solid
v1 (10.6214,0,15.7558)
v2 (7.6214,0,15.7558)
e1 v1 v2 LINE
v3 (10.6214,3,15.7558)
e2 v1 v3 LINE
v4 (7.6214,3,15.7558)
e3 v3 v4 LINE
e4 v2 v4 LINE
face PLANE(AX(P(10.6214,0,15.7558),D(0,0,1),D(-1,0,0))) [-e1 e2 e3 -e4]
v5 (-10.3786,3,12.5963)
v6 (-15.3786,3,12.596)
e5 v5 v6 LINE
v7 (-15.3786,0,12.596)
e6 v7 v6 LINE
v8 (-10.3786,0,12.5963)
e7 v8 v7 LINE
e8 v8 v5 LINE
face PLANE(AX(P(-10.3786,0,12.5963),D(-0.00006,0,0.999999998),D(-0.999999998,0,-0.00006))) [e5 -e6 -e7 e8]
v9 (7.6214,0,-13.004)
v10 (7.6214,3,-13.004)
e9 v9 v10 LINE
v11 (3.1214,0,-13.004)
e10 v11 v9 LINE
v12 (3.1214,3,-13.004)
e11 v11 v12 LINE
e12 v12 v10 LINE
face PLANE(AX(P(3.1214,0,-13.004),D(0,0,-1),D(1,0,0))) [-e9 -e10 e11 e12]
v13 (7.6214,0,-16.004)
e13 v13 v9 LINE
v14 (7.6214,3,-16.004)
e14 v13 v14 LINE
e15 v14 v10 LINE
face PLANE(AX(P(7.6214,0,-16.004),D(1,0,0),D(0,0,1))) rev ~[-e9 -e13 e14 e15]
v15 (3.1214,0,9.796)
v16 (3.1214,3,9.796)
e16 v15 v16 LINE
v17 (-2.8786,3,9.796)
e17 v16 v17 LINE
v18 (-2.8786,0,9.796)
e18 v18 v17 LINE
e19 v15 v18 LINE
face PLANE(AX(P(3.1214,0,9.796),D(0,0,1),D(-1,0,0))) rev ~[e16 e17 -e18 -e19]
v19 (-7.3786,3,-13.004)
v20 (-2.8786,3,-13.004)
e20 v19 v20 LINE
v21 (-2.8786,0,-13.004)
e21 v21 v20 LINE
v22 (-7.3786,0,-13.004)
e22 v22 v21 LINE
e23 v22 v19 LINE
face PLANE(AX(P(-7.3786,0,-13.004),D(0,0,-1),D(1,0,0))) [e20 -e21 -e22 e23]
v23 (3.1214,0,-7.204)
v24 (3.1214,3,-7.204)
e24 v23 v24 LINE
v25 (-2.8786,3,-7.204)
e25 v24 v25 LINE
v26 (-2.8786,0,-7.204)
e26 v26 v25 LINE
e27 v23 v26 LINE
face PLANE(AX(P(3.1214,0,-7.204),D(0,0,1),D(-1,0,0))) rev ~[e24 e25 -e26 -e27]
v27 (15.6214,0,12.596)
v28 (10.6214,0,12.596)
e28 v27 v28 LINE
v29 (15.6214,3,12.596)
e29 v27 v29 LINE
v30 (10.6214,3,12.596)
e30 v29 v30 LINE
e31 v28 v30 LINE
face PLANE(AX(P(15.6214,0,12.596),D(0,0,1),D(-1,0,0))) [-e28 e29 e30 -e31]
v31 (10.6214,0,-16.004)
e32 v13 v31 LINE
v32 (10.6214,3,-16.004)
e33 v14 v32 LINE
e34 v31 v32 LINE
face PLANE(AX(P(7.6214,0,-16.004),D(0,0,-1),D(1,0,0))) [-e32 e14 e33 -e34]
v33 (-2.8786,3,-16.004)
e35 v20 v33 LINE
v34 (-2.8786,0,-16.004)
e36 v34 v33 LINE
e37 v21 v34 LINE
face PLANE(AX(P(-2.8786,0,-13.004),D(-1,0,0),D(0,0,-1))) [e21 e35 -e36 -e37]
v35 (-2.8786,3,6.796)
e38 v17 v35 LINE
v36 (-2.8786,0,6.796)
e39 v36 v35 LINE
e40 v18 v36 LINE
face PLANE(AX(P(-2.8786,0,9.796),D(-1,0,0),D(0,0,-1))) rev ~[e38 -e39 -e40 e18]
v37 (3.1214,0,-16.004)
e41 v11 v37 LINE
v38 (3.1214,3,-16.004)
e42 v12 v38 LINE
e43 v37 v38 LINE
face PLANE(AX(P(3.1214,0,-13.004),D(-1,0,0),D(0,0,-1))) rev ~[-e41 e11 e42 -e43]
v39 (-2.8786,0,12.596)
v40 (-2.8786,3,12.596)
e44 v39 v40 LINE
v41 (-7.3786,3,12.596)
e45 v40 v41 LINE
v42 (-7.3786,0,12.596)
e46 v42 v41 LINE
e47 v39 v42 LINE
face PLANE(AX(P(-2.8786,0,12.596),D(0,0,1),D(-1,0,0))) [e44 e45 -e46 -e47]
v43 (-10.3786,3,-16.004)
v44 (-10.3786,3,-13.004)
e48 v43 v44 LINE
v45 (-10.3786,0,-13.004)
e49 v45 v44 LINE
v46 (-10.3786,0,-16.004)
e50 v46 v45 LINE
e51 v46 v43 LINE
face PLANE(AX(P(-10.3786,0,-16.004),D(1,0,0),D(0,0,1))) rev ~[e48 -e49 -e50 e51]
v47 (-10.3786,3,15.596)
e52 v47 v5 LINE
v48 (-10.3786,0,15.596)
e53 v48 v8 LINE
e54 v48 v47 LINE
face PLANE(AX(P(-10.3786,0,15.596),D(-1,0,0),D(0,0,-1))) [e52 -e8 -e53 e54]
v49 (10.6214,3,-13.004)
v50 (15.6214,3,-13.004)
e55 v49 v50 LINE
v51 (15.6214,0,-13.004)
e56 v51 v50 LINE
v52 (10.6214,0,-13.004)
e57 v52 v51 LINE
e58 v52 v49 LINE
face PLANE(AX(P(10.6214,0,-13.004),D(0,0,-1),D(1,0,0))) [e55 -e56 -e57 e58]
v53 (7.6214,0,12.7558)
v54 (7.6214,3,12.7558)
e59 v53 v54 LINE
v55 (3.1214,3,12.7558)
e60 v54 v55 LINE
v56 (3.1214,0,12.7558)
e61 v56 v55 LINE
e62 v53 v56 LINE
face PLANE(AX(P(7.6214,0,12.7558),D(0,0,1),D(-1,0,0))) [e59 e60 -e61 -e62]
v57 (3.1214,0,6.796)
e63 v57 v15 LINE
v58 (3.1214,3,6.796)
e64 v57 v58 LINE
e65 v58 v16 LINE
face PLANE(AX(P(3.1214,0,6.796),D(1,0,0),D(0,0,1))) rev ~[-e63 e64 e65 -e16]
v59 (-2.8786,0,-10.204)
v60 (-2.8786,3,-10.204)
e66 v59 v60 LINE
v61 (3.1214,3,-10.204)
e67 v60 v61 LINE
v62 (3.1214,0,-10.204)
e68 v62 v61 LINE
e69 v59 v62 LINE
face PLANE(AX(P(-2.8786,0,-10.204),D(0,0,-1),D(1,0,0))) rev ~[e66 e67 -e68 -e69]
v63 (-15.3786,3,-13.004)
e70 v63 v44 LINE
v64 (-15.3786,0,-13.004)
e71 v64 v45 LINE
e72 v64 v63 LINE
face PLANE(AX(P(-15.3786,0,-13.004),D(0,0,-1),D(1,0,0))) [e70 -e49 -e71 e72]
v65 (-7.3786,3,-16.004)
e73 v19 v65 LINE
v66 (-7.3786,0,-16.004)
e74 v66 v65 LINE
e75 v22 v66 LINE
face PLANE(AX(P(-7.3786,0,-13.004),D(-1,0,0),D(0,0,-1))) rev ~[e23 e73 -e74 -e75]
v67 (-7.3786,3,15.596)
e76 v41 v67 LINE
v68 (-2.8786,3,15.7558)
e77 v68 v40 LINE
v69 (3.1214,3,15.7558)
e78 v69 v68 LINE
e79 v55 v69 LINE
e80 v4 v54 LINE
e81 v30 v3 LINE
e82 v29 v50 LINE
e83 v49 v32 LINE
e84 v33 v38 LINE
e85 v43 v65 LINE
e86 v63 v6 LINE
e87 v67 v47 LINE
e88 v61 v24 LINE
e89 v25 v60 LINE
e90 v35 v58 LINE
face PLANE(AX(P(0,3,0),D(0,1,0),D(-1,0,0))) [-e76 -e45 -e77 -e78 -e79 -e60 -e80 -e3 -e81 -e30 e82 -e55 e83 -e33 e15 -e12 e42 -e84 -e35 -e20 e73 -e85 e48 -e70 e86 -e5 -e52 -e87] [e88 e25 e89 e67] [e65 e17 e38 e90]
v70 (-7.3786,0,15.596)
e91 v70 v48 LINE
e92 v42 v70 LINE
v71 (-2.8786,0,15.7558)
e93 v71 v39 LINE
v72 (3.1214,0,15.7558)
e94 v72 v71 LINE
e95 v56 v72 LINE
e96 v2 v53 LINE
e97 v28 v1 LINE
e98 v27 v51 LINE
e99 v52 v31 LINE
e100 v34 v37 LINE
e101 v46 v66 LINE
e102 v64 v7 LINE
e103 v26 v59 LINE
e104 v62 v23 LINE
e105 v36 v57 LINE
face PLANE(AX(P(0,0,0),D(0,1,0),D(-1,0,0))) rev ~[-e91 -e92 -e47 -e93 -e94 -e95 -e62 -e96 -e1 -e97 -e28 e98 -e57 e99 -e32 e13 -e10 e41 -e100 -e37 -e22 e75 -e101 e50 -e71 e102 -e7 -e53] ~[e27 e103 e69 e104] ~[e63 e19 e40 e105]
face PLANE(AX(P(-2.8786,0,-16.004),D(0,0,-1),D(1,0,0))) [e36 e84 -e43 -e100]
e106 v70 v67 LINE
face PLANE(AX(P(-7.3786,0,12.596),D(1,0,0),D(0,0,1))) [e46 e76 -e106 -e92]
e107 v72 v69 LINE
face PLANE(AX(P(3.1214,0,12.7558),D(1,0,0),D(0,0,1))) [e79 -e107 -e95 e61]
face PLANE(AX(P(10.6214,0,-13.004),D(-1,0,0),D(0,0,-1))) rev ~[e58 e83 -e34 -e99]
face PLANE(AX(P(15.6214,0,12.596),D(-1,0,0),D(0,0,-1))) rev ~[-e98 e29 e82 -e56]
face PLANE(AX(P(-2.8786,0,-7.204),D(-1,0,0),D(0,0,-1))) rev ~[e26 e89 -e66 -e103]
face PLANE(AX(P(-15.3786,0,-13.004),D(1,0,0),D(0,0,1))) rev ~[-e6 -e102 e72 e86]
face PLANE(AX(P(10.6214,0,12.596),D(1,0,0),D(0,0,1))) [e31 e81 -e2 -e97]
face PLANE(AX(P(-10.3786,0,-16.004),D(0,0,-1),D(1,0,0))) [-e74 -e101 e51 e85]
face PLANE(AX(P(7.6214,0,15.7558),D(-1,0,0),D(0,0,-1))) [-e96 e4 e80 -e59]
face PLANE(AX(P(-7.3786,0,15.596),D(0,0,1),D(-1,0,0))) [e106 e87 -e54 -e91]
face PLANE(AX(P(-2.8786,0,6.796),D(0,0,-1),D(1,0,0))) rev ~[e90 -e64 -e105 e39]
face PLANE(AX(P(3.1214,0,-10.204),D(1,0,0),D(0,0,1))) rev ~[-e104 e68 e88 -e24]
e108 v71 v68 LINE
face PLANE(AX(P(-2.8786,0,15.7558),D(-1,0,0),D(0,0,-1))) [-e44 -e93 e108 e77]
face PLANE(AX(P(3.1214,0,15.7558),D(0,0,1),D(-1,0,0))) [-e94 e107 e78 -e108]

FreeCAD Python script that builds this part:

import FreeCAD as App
import Part
import Sketcher

V = App.Vector
Q = App.Units.Quantity

doc = App.newDocument("Part")
body = doc.addObject("PartDesign::Body", "Body")

# Sketch on XZ plane
sketch1 = body.newObject("Sketcher::SketchObject", "Sketch")
sketch1.AttachmentSupport = (doc.getObject("XZ_Plane"), [""])
sketch1.MapMode = "FlatFace"
sketch1.addGeometry([
    Part.LineSegment(V(-2.8786, -16.004, 0), V(-2.8786, -13.004, 0)),  # 0
    Part.LineSegment(V(-2.8786, -13.004, 0), V(-7.3786, -13.004, 0)),  # 1
    Part.LineSegment(V(-7.3786, -13.004, 0), V(-7.3786, -16.004, 0)),  # 2
    Part.LineSegment(V(-7.3786, -16.004, 0), V(-10.3786, -16.004, 0)),  # 3
    Part.LineSegment(V(-10.3786, -16.004, 0), V(-10.3786, -13.004, 0)),  # 4
    Part.LineSegment(V(-10.3786, -13.004, 0), V(-15.3786, -13.004, 0)),  # 5
    Part.LineSegment(V(-15.3786, -13.004, 0), V(-15.3786, 12.596, 0)),  # 6
    Part.LineSegment(V(-15.3786, 12.596, 0), V(-10.3786, 12.5963, 0)),  # 7
    Part.LineSegment(V(-10.3786, 12.5963, 0), V(-10.3786, 15.596, 0)),  # 8
    Part.LineSegment(V(-10.3786, 15.596, 0), V(-7.3786, 15.596, 0)),  # 9
    Part.LineSegment(V(-7.3786, 15.596, 0), V(-7.3786, 12.596, 0)),  # 10
    Part.LineSegment(V(-7.3786, 12.596, 0), V(-2.8786, 12.596, 0)),  # 11
    Part.LineSegment(V(-2.8786, 12.596, 0), V(-2.8786, 15.7558, 0)),  # 12
    Part.LineSegment(V(-2.8786, 15.7558, 0), V(3.1214, 15.7558, 0)),  # 13
    Part.LineSegment(V(3.1214, 15.7558, 0), V(3.1214, 12.7558, 0)),  # 14
    Part.LineSegment(V(3.1214, 12.7558, 0), V(7.6214, 12.7558, 0)),  # 15
    Part.LineSegment(V(7.6214, 12.7558, 0), V(7.6214, 15.7558, 0)),  # 16
    Part.LineSegment(V(7.6214, 15.7558, 0), V(10.6214, 15.7558, 0)),  # 17
    Part.LineSegment(V(10.6214, 15.7558, 0), V(10.6214, 12.596, 0)),  # 18
    Part.LineSegment(V(10.6214, 12.596, 0), V(15.6214, 12.596, 0)),  # 19
    Part.LineSegment(V(15.6214, 12.596, 0), V(15.6214, -13.004, 0)),  # 20
    Part.LineSegment(V(15.6214, -13.004, 0), V(10.6214, -13.004, 0)),  # 21
    Part.LineSegment(V(10.6214, -13.004, 0), V(10.6214, -16.004, 0)),  # 22
    Part.LineSegment(V(10.6214, -16.004, 0), V(7.6214, -16.004, 0)),  # 23
    Part.LineSegment(V(7.6214, -16.004, 0), V(7.6214, -13.004, 0)),  # 24
    Part.LineSegment(V(7.6214, -13.004, 0), V(3.1214, -13.004, 0)),  # 25
    Part.LineSegment(V(3.1214, -13.004, 0), V(3.1214, -16.004, 0)),  # 26
    Part.LineSegment(V(3.1214, -16.004, 0), V(-2.8786, -16.004, 0)),  # 27
], False)
sketch1.addConstraint([
    Sketcher.Constraint("Coincident", 0, 2, 1, 1),
    Sketcher.Constraint("Coincident", 1, 2, 2, 1),
    Sketcher.Constraint("Coincident", 2, 2, 3, 1),
    Sketcher.Constraint("Coincident", 3, 2, 4, 1),
    Sketcher.Constraint("Coincident", 4, 2, 5, 1),
    Sketcher.Constraint("Coincident", 5, 2, 6, 1),
    Sketcher.Constraint("Coincident", 6, 2, 7, 1),
    Sketcher.Constraint("Coincident", 7, 2, 8, 1),
    Sketcher.Constraint("Coincident", 8, 2, 9, 1),
    Sketcher.Constraint("Coincident", 9, 2, 10, 1),
    Sketcher.Constraint("Coincident", 10, 2, 11, 1),
    Sketcher.Constraint("Coincident", 11, 2, 12, 1),
    Sketcher.Constraint("Coincident", 12, 2, 13, 1),
    Sketcher.Constraint("Coincident", 13, 2, 14, 1),
    Sketcher.Constraint("Coincident", 14, 2, 15, 1),
    Sketcher.Constraint("Coincident", 15, 2, 16, 1),
    Sketcher.Constraint("Coincident", 16, 2, 17, 1),
    Sketcher.Constraint("Coincident", 17, 2, 18, 1),
    Sketcher.Constraint("Coincident", 18, 2, 19, 1),
    Sketcher.Constraint("Coincident", 19, 2, 20, 1),
    Sketcher.Constraint("Coincident", 20, 2, 21, 1),
    Sketcher.Constraint("Coincident", 21, 2, 22, 1),
    Sketcher.Constraint("Coincident", 22, 2, 23, 1),
    Sketcher.Constraint("Coincident", 23, 2, 24, 1),
    Sketcher.Constraint("Coincident", 24, 2, 25, 1),
    Sketcher.Constraint("Coincident", 25, 2, 26, 1),
    Sketcher.Constraint("Coincident", 26, 2, 27, 1),
    Sketcher.Constraint("Coincident", 27, 2, 0, 1),
    Sketcher.Constraint("Vertical", 0),
    Sketcher.Constraint("Horizontal", 1),
    Sketcher.Constraint("Vertical", 2),
    Sketcher.Constraint("Horizontal", 3),
    Sketcher.Constraint("Vertical", 4),
    Sketcher.Constraint("Horizontal", 5),
    Sketcher.Constraint("Vertical", 6),
    Sketcher.Constraint("Vertical", 8),
    Sketcher.Constraint("Horizontal", 9),
    Sketcher.Constraint("Vertical", 10),
    Sketcher.Constraint("Horizontal", 11),
    Sketcher.Constraint("Vertical", 12),
    Sketcher.Constraint("Horizontal", 13),
    Sketcher.Constraint("Vertical", 14),
    Sketcher.Constraint("Horizontal", 15),
    Sketcher.Constraint("Vertical", 16),
    Sketcher.Constraint("Horizontal", 17),
    Sketcher.Constraint("Vertical", 18),
    Sketcher.Constraint("Horizontal", 19),
    Sketcher.Constraint("Vertical", 20),
    Sketcher.Constraint("Horizontal", 21),
    Sketcher.Constraint("Vertical", 22),
    Sketcher.Constraint("Horizontal", 23),
    Sketcher.Constraint("Vertical", 24),
    Sketcher.Constraint("Horizontal", 25),
    Sketcher.Constraint("Vertical", 26),
    Sketcher.Constraint("Horizontal", 27),
    Sketcher.Constraint("Horizontal", 1, 2, 4, 2),
    Sketcher.Constraint("Horizontal", 6, 2, 10, 2),
    Sketcher.Constraint("Horizontal", 13, 2, 16, 2),
    Sketcher.Constraint("Horizontal", 11, 2, 18, 2),
    Sketcher.Constraint("Horizontal", 5, 2, 20, 2),
    Sketcher.Constraint("Horizontal", 3, 2, 22, 2),
    Sketcher.Constraint("Horizontal", 21, 2, 24, 2),
    Sketcher.Constraint("Horizontal", 23, 2, 26, 2),
    Sketcher.Constraint("Vertical", 4, 2, 7, 2),
    Sketcher.Constraint("Vertical", 2, 2, 9, 2),
    Sketcher.Constraint("Vertical", 0, 2, 11, 2),
    Sketcher.Constraint("Vertical", 18, 2, 21, 2),
    Sketcher.Constraint("Vertical", 16, 2, 23, 2),
    Sketcher.Constraint("Vertical", 14, 2, 25, 2),
    Sketcher.Constraint("Equal", 11, 15),
    Sketcher.Constraint("Equal", 9, 17),
    Sketcher.Constraint("Equal", 5, 19),
    Sketcher.Constraint("Equal", 23, 0),
    Sketcher.Constraint("Equal", 4, 10),
    Sketcher.Constraint("Equal", 10, 14),
    Sketcher.Constraint("DistanceX", 3, 2, 3, 1, Q("3 mm")),
    Sketcher.Constraint("DistanceX", 13, 1, 13, 2, Q("6 mm")),
    Sketcher.Constraint("DistanceX", 1, 2, 1, 1, Q("4.5 mm")),
    Sketcher.Constraint("DistanceY", 6, 1, 6, 2, Q("25.6 mm")),
    Sketcher.Constraint("DistanceX", 5, 2, 5, 1, Q("5 mm")),
    Sketcher.Constraint("DistanceY", 8, 1, 8, 2, Q("2.9997 mm")),
    Sketcher.Constraint("DistanceY", 12, 1, 12, 2, Q("3.1598 mm")),
    Sketcher.Constraint("DistanceY", 0, 2, -1, 1, Q("13.004 mm")),
    Sketcher.Constraint("DistanceX", 0, 2, -1, 1, Q("2.8786 mm")),
])
pad1 = body.newObject("PartDesign::Pad", "Pad")
pad1.Profile = sketch1
pad1.Length = 3
pad1.Reversed = True

# Sketch on XZ plane
sketch2 = body.newObject("Sketcher::SketchObject", "Sketch001")
sketch2.AttachmentSupport = (doc.getObject("XZ_Plane"), [""])
sketch2.MapMode = "FlatFace"
sketch2.addGeometry([
    Part.LineSegment(V(3.1214, 6.796, 0), V(-2.8786, 6.796, 0)),
    Part.LineSegment(V(-2.8786, 6.796, 0), V(-2.8786, 9.796, 0)),
    Part.LineSegment(V(-2.8786, 9.796, 0), V(3.1214, 9.796, 0)),
    Part.LineSegment(V(3.1214, 9.796, 0), V(3.1214, 6.796, 0)),
], False)
sketch2.addConstraint([
    Sketcher.Constraint("Coincident", 0, 2, 1, 1),
    Sketcher.Constraint("Coincident", 1, 2, 2, 1),
    Sketcher.Constraint("Coincident", 2, 2, 3, 1),
    Sketcher.Constraint("Coincident", 3, 2, 0, 1),
    Sketcher.Constraint("Horizontal", 0),
    Sketcher.Constraint("Vertical", 1),
    Sketcher.Constraint("Horizontal", 2),
    Sketcher.Constraint("Vertical", 3),
    Sketcher.Constraint("DistanceX", 0, 2, 0, 1, Q("6 mm")),
    Sketcher.Constraint("DistanceY", 1, 1, 1, 2, Q("3 mm")),
    Sketcher.Constraint("DistanceY", -1, 1, 0, 2, Q("6.796 mm")),
    Sketcher.Constraint("DistanceX", 0, 2, -1, 1, Q("2.8786 mm")),
])
pocket1 = body.newObject("PartDesign::Pocket", "Pocket")
pocket1.Profile = sketch2
pocket1.Type = "UpToFirst"

# Sketch on XZ plane
sketch3 = body.newObject("Sketcher::SketchObject", "Sketch002")
sketch3.AttachmentSupport = (doc.getObject("XZ_Plane"), [""])
sketch3.MapMode = "FlatFace"
sketch3.addGeometry([
    Part.LineSegment(V(3.1214, -10.204, 0), V(-2.8786, -10.204, 0)),
    Part.LineSegment(V(-2.8786, -10.204, 0), V(-2.8786, -7.204, 0)),
    Part.LineSegment(V(-2.8786, -7.204, 0), V(3.1214, -7.204, 0)),
    Part.LineSegment(V(3.1214, -7.204, 0), V(3.1214, -10.204, 0)),
], False)
sketch3.addConstraint([
    Sketcher.Constraint("Coincident", 0, 2, 1, 1),
    Sketcher.Constraint("Coincident", 1, 2, 2, 1),
    Sketcher.Constraint("Coincident", 2, 2, 3, 1),
    Sketcher.Constraint("Coincident", 3, 2, 0, 1),
    Sketcher.Constraint("Horizontal", 0),
    Sketcher.Constraint("Vertical", 1),
    Sketcher.Constraint("Horizontal", 2),
    Sketcher.Constraint("Vertical", 3),
    Sketcher.Constraint("DistanceX", 0, 2, 0, 1, Q("6 mm")),
    Sketcher.Constraint("DistanceY", 1, 1, 1, 2, Q("3 mm")),
    Sketcher.Constraint("DistanceY", 0, 2, -1, 1, Q("10.204 mm")),
    Sketcher.Constraint("DistanceX", 0, 2, -1, 1, Q("2.8786 mm")),
])
pocket2 = body.newObject("PartDesign::Pocket", "Pocket001")
pocket2.Profile = sketch3
pocket2.Type = "UpToFirst"

doc.recompute()
